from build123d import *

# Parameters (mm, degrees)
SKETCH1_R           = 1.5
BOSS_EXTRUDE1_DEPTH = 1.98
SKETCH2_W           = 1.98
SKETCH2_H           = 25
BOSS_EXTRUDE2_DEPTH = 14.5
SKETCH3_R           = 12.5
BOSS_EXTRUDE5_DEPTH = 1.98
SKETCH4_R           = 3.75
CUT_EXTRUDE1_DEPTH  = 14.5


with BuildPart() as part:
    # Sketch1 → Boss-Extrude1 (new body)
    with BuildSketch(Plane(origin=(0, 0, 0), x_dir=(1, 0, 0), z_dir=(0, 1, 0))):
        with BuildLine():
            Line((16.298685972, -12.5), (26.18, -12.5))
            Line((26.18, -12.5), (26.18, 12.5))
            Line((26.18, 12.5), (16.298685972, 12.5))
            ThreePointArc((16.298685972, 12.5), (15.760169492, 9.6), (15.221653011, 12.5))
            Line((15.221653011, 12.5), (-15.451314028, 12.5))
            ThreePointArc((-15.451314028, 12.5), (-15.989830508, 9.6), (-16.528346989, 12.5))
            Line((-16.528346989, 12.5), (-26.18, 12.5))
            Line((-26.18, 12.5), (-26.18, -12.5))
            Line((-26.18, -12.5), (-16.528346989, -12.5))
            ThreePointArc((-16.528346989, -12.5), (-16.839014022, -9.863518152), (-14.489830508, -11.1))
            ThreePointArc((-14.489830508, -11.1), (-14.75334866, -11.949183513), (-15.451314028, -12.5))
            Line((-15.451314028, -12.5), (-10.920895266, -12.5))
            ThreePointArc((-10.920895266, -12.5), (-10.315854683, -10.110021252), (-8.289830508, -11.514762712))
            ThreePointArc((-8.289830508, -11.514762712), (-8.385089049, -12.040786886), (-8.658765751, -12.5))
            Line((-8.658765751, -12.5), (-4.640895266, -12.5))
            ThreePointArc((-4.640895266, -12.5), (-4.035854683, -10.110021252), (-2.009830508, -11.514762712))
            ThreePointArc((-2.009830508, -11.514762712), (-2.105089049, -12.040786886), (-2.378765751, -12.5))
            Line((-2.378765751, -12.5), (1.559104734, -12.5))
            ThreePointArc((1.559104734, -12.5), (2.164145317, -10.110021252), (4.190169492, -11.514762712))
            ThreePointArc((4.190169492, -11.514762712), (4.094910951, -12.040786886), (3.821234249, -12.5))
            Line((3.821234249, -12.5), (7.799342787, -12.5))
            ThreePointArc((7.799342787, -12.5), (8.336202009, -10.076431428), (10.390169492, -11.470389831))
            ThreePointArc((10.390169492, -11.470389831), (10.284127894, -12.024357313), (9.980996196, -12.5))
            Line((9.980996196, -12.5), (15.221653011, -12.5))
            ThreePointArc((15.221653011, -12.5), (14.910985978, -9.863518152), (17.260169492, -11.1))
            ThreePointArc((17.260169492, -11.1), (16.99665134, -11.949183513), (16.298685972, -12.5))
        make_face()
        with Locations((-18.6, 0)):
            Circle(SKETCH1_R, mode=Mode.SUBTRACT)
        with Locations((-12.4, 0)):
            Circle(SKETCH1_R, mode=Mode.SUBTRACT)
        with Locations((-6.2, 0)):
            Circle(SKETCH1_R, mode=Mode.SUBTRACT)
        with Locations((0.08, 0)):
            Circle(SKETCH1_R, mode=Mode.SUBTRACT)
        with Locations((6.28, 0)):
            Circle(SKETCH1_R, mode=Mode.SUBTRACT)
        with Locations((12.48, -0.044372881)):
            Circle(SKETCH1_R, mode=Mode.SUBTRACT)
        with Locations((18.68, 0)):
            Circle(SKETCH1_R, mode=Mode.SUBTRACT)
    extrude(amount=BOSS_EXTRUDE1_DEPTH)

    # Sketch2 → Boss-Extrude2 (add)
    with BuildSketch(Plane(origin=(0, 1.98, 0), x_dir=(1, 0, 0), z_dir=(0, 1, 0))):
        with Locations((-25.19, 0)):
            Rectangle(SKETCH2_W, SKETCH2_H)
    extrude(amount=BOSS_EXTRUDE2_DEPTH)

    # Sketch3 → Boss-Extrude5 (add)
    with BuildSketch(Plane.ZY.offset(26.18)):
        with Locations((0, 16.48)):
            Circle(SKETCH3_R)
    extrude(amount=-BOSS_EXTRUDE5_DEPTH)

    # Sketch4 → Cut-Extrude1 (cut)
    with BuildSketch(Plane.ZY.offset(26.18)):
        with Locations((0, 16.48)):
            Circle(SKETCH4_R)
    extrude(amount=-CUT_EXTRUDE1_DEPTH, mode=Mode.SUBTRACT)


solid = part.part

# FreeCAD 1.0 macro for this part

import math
import FreeCAD as App
import Part
import Sketcher


def add_polygon(sketch, points):
    """Adds a closed chain of lines whose ends are joined by coincident constraints."""
    first, n = sketch.GeometryCount, len(points)
    for a, b in zip(points, points[1:] + points[:1]):
        sketch.addGeometry(Part.LineSegment(App.Vector(*a, 0), App.Vector(*b, 0)), False)
    for i in range(n):
        sketch.addConstraint(Sketcher.Constraint("Coincident", first + i, 2, first + (i + 1) % n, 1))

doc = App.newDocument("Part")
body = doc.addObject("PartDesign::Body", "Body")

sketch1 = body.newObject("Sketcher::SketchObject", "Sketch")
sketch1.AttachmentSupport = (doc.getObject("XZ_Plane"), [""])
sketch1.MapMode = "FlatFace"
sketch1.addGeometry([
    Part.LineSegment(App.Vector(16.3, 12.5, 0), App.Vector(26.2, 12.5, 0)),
    Part.LineSegment(App.Vector(26.2, 12.5, 0), App.Vector(26.2, -12.5, 0)),
    Part.LineSegment(App.Vector(26.2, -12.5, 0), App.Vector(16.3, -12.5, 0)),
    Part.ArcOfCircle(Part.Circle(App.Vector(15.8, -11.1, 0), App.Vector(0, 0, 1), 1.5), math.radians(-69), math.radians(249)),
    Part.LineSegment(App.Vector(15.2, -12.5, 0), App.Vector(-15.5, -12.5, 0)),
    Part.ArcOfCircle(Part.Circle(App.Vector(-16, -11.1, 0), App.Vector(0, 0, 1), 1.5), math.radians(-69), math.radians(249)),
    Part.LineSegment(App.Vector(-16.5, -12.5, 0), App.Vector(-26.2, -12.5, 0)),
    Part.LineSegment(App.Vector(-26.2, -12.5, 0), App.Vector(-26.2, 12.5, 0)),
    Part.LineSegment(App.Vector(-26.2, 12.5, 0), App.Vector(-16.5, 12.5, 0)),
    Part.ArcOfCircle(Part.Circle(App.Vector(-16, 11.1, 0), App.Vector(0, 0, 1), 1.5), math.radians(111), math.radians(360)),
    Part.ArcOfCircle(Part.Circle(App.Vector(-16, 11.1, 0), App.Vector(0, 0, 1), 1.5), math.radians(0), math.radians(69)),
    Part.LineSegment(App.Vector(-15.5, 12.5, 0), App.Vector(-10.9, 12.5, 0)),
    Part.ArcOfCircle(Part.Circle(App.Vector(-9.8, 11.5, 0), App.Vector(0, 0, 1), 1.5), math.radians(139), math.radians(360)),
    Part.ArcOfCircle(Part.Circle(App.Vector(-9.8, 11.5, 0), App.Vector(0, 0, 1), 1.5), math.radians(0), math.radians(41)),
    Part.LineSegment(App.Vector(-8.7, 12.5, 0), App.Vector(-4.6, 12.5, 0)),
    Part.ArcOfCircle(Part.Circle(App.Vector(-3.5, 11.5, 0), App.Vector(0, 0, 1), 1.5), math.radians(139), math.radians(360)),
    Part.ArcOfCircle(Part.Circle(App.Vector(-3.5, 11.5, 0), App.Vector(0, 0, 1), 1.5), math.radians(0), math.radians(41)),
    Part.LineSegment(App.Vector(-2.4, 12.5, 0), App.Vector(1.6, 12.5, 0)),
    Part.ArcOfCircle(Part.Circle(App.Vector(2.7, 11.5, 0), App.Vector(0, 0, 1), 1.5), math.radians(139), math.radians(360)),
    Part.ArcOfCircle(Part.Circle(App.Vector(2.7, 11.5, 0), App.Vector(0, 0, 1), 1.5), math.radians(0), math.radians(41)),
    Part.LineSegment(App.Vector(3.8, 12.5, 0), App.Vector(7.8, 12.5, 0)),
    Part.ArcOfCircle(Part.Circle(App.Vector(8.9, 11.5, 0), App.Vector(0, 0, 1), 1.5), math.radians(137), math.radians(360)),
    Part.ArcOfCircle(Part.Circle(App.Vector(8.9, 11.5, 0), App.Vector(0, 0, 1), 1.5), math.radians(0), math.radians(43)),
    Part.LineSegment(App.Vector(10, 12.5, 0), App.Vector(15.2, 12.5, 0)),
    Part.ArcOfCircle(Part.Circle(App.Vector(15.8, 11.1, 0), App.Vector(0, 0, 1), 1.5), math.radians(111), math.radians(360)),
    Part.ArcOfCircle(Part.Circle(App.Vector(15.8, 11.1, 0), App.Vector(0, 0, 1), 1.5), math.radians(0), math.radians(69)),
    Part.Circle(App.Vector(12.5, 0, 0), App.Vector(0, 0, 1), 1.5),
    Part.Circle(App.Vector(-18.6, 0, 0), App.Vector(0, 0, 1), 1.5),
    Part.Circle(App.Vector(-12.4, 0, 0), App.Vector(0, 0, 1), 1.5),
    Part.Circle(App.Vector(-6.2, 0, 0), App.Vector(0, 0, 1), 1.5),
    Part.Circle(App.Vector(0.1, 0, 0), App.Vector(0, 0, 1), 1.5),
    Part.Circle(App.Vector(6.3, 0, 0), App.Vector(0, 0, 1), 1.5),
    Part.Circle(App.Vector(18.7, 0, 0), App.Vector(0, 0, 1), 1.5),
], False)
sketch1.addConstraint([
    Sketcher.Constraint("Coincident", 0, 2, 1, 1),
    Sketcher.Constraint("Coincident", 1, 2, 2, 1),
    Sketcher.Constraint("Coincident", 2, 2, 3, 1),
    Sketcher.Constraint("Coincident", 3, 2, 4, 1),
    Sketcher.Constraint("Coincident", 4, 2, 5, 1),
    Sketcher.Constraint("Coincident", 5, 2, 6, 1),
    Sketcher.Constraint("Coincident", 6, 2, 7, 1),
    Sketcher.Constraint("Coincident", 7, 2, 8, 1),
    Sketcher.Constraint("Coincident", 8, 2, 9, 1),
    Sketcher.Constraint("Tangent", 9, 2, 10, 1),
    Sketcher.Constraint("Coincident", 10, 2, 11, 1),
    Sketcher.Constraint("Coincident", 11, 2, 12, 1),
    Sketcher.Constraint("Tangent", 12, 2, 13, 1),
    Sketcher.Constraint("Coincident", 13, 2, 14, 1),
    Sketcher.Constraint("Coincident", 14, 2, 15, 1),
    Sketcher.Constraint("Tangent", 15, 2, 16, 1),
    Sketcher.Constraint("Coincident", 16, 2, 17, 1),
    Sketcher.Constraint("Coincident", 17, 2, 18, 1),
    Sketcher.Constraint("Tangent", 18, 2, 19, 1),
    Sketcher.Constraint("Coincident", 19, 2, 20, 1),
    Sketcher.Constraint("Coincident", 20, 2, 21, 1),
    Sketcher.Constraint("Tangent", 21, 2, 22, 1),
    Sketcher.Constraint("Coincident", 22, 2, 23, 1),
    Sketcher.Constraint("Coincident", 23, 2, 24, 1),
    Sketcher.Constraint("Tangent", 24, 2, 25, 1),
    Sketcher.Constraint("Coincident", 25, 2, 0, 1),
    Sketcher.Constraint("Horizontal", 0),
    Sketcher.Constraint("Vertical", 1),
    Sketcher.Constraint("Horizontal", 2),
    Sketcher.Constraint("Horizontal", 4),
    Sketcher.Constraint("Horizontal", 6),
    Sketcher.Constraint("Vertical", 7),
    Sketcher.Constraint("Horizontal", 8),
    Sketcher.Constraint("Horizontal", 11),
    Sketcher.Constraint("Horizontal", 14),
    Sketcher.Constraint("Horizontal", 17),
    Sketcher.Constraint("Horizontal", 20),
    Sketcher.Constraint("Horizontal", 23),
    Sketcher.Constraint("Equal", 3, 5),
    Sketcher.Constraint("Equal", 5, 9),
    Sketcher.Constraint("Equal", 9, 10),
    Sketcher.Constraint("Equal", 10, 12),
    Sketcher.Constraint("Equal", 12, 13),
    Sketcher.Constraint("Equal", 13, 15),
    Sketcher.Constraint("Equal", 15, 16),
    Sketcher.Constraint("Equal", 16, 18),
    Sketcher.Constraint("Equal", 18, 19),
    Sketcher.Constraint("Equal", 19, 21),
    Sketcher.Constraint("Equal", 21, 22),
    Sketcher.Constraint("Equal", 22, 24),
    Sketcher.Constraint("Equal", 24, 25),
    Sketcher.Constraint("Equal", 25, 26),
    Sketcher.Constraint("Equal", 26, 27),
    Sketcher.Constraint("Equal", 27, 28),
    Sketcher.Constraint("Equal", 28, 29),
    Sketcher.Constraint("Equal", 29, 30),
    Sketcher.Constraint("Equal", 30, 31),
    Sketcher.Constraint("Equal", 31, 32),
    Sketcher.Constraint("Symmetric", 0, 2, 6, 2, -1, 1),
    Sketcher.Constraint("Symmetric", 5, 3, 9, 3, -1),
    Sketcher.Constraint("Symmetric", 3, 3, 24, 3, -1),
    Sketcher.Constraint("PointOnObject", 27, 3, -1),
    Sketcher.Constraint("PointOnObject", 28, 3, -1),
    Sketcher.Constraint("PointOnObject", 29, 3, -1),
    Sketcher.Constraint("PointOnObject", 30, 3, -1),
    Sketcher.Constraint("PointOnObject", 31, 3, -1),
    Sketcher.Constraint("PointOnObject", 32, 3, -1),
    Sketcher.Constraint("Horizontal", 3, 3, 5, 3),
    Sketcher.Constraint("Horizontal", 13, 3, 15, 3),
    Sketcher.Constraint("Horizontal", 16, 3, 18, 3),
    Sketcher.Constraint("Horizontal", 2, 2, 3, 2),
    Sketcher.Constraint("Horizontal", 4, 2, 5, 2),
    Sketcher.Constraint("Horizontal", 0, 2, 7, 2),
    Sketcher.Constraint("Horizontal", 25, 3, 9, 2),
    Sketcher.Constraint("Horizontal", 8, 2, 10, 2),
    Sketcher.Constraint("Horizontal", 19, 3, 12, 2),
    Sketcher.Constraint("Horizontal", 11, 2, 13, 2),
    Sketcher.Constraint("Horizontal", 12, 2, 15, 2),
    Sketcher.Constraint("Horizontal", 14, 2, 16, 2),
    Sketcher.Constraint("Horizontal", 15, 2, 18, 2),
    Sketcher.Constraint("Horizontal", 17, 2, 19, 2),
    Sketcher.Constraint("Horizontal", 22, 3, 21, 2),
    Sketcher.Constraint("Horizontal", 20, 2, 22, 2),
    Sketcher.Constraint("Horizontal", 9, 2, 24, 2),
    Sketcher.Constraint("Diameter", 26, 3.0),
    Sketcher.Constraint("DistanceY", 1, 2, 1, 1, 25.0),
    Sketcher.Constraint("DistanceY", 3, 3, -1, 1, 11.1),
    Sketcher.Constraint("DistanceX", 27, 3, -1, 1, 18.6),
    Sketcher.Constraint("DistanceX", 28, 3, -1, 1, 12.4),
    Sketcher.Constraint("DistanceX", 29, 3, -1, 1, 6.2),
    Sketcher.Constraint("DistanceX", 9, 3, 12, 3, 6.2),
    Sketcher.Constraint("DistanceX", 15, 3, 18, 3, 6.2),
    Sketcher.Constraint("DistanceX", 18, 3, 21, 3, 6.2),
    Sketcher.Constraint("DistanceX", 30, 3, 31, 3, 6.2),
    Sketcher.Constraint("DistanceX", 31, 3, 26, 3, 6.2),
    Sketcher.Constraint("DistanceX", 26, 3, 32, 3, 6.2),
    Sketcher.Constraint("DistanceX", 32, 3, 0, 2, 7.5),
    Sketcher.Constraint("DistanceX", -1, 1, 26, 3, 12.48),
    Sketcher.Constraint("DistanceX", 5, 3, 3, 3, 31.75),
    Sketcher.Constraint("DistanceX", 12, 3, 15, 3, 6.28),
    Sketcher.Constraint("DistanceX", 11, 1, 11, 2, 4.530419),
    Sketcher.Constraint("DistanceX", 20, 1, 20, 2, 3.978109),
    Sketcher.Constraint("DistanceX", 0, 1, 0, 2, 9.881314),
    Sketcher.Constraint("DistanceY", -1, 1, 26, 3, 0.044373),
])
pad1 = body.newObject("PartDesign::Pad", "Pad")
pad1.Profile = sketch1
pad1.Length = 1.98
pad1.Reversed = True

sketch2 = body.newObject("Sketcher::SketchObject", "Sketch001")
sketch2.AttachmentSupport = (doc.getObject("XZ_Plane"), [""])
sketch2.MapMode = "FlatFace"
sketch2.AttachmentOffset = App.Placement(App.Vector(0, 0, -1.98), App.Rotation())
add_polygon(sketch2, [(-26.2, -12.5), (-26.2, 12.5), (-24.2, 12.5), (-24.2, -12.5)])
sketch2.addConstraint([
    Sketcher.Constraint("Vertical", 0),
    Sketcher.Constraint("Horizontal", 1),
    Sketcher.Constraint("Vertical", 2),
    Sketcher.Constraint("Horizontal", 3),
    Sketcher.Constraint("DistanceY", 0, 1, 0, 2, 25.0),
    Sketcher.Constraint("DistanceX", 1, 1, 1, 2, 1.98),
    Sketcher.Constraint("DistanceY", -1, 1, 0, 2, 12.5),
    Sketcher.Constraint("DistanceX", 1, 2, -1, 1, 24.2),
])
pad2 = body.newObject("PartDesign::Pad", "Pad001")
pad2.Profile = sketch2
pad2.Length = 14.5
pad2.Reversed = True

sketch3 = body.newObject("Sketcher::SketchObject", "Sketch002")
sketch3.AttachmentSupport = (doc.getObject("YZ_Plane"), [""])
sketch3.MapMode = "FlatFace"
sketch3.AttachmentOffset = App.Placement(App.Vector(0, 0, -26.18), App.Rotation())
sketch3.addGeometry(Part.Circle(App.Vector(16, 0, 0), App.Vector(0, 0, 1), 12), False)
sketch3.addConstraint([
    Sketcher.Constraint("PointOnObject", 0, 3, -1),
    Sketcher.Constraint("Diameter", 0, 25.0),
    Sketcher.Constraint("DistanceX", -1, 1, 0, 3, 16.48),
])
pad3 = body.newObject("PartDesign::Pad", "Pad002")
pad3.Profile = sketch3
pad3.Length = 1.98

sketch4 = body.newObject("Sketcher::SketchObject", "Sketch003")
sketch4.AttachmentSupport = (doc.getObject("YZ_Plane"), [""])
sketch4.MapMode = "FlatFace"
sketch4.AttachmentOffset = App.Placement(App.Vector(0, 0, -26.18), App.Rotation())
sketch4.addGeometry(Part.Circle(App.Vector(16.5, 0, 0), App.Vector(0, 0, 1), 3.8), False)
sketch4.addConstraint([
    Sketcher.Constraint("PointOnObject", 0, 3, -1),
    Sketcher.Constraint("Diameter", 0, 7.5),
    Sketcher.Constraint("DistanceX", -1, 1, 0, 3, 16.48),
])
pocket1 = body.newObject("PartDesign::Pocket", "Pocket")
pocket1.Profile = sketch4
pocket1.Length = 14.5
pocket1.Reversed = True

doc.recompute()
